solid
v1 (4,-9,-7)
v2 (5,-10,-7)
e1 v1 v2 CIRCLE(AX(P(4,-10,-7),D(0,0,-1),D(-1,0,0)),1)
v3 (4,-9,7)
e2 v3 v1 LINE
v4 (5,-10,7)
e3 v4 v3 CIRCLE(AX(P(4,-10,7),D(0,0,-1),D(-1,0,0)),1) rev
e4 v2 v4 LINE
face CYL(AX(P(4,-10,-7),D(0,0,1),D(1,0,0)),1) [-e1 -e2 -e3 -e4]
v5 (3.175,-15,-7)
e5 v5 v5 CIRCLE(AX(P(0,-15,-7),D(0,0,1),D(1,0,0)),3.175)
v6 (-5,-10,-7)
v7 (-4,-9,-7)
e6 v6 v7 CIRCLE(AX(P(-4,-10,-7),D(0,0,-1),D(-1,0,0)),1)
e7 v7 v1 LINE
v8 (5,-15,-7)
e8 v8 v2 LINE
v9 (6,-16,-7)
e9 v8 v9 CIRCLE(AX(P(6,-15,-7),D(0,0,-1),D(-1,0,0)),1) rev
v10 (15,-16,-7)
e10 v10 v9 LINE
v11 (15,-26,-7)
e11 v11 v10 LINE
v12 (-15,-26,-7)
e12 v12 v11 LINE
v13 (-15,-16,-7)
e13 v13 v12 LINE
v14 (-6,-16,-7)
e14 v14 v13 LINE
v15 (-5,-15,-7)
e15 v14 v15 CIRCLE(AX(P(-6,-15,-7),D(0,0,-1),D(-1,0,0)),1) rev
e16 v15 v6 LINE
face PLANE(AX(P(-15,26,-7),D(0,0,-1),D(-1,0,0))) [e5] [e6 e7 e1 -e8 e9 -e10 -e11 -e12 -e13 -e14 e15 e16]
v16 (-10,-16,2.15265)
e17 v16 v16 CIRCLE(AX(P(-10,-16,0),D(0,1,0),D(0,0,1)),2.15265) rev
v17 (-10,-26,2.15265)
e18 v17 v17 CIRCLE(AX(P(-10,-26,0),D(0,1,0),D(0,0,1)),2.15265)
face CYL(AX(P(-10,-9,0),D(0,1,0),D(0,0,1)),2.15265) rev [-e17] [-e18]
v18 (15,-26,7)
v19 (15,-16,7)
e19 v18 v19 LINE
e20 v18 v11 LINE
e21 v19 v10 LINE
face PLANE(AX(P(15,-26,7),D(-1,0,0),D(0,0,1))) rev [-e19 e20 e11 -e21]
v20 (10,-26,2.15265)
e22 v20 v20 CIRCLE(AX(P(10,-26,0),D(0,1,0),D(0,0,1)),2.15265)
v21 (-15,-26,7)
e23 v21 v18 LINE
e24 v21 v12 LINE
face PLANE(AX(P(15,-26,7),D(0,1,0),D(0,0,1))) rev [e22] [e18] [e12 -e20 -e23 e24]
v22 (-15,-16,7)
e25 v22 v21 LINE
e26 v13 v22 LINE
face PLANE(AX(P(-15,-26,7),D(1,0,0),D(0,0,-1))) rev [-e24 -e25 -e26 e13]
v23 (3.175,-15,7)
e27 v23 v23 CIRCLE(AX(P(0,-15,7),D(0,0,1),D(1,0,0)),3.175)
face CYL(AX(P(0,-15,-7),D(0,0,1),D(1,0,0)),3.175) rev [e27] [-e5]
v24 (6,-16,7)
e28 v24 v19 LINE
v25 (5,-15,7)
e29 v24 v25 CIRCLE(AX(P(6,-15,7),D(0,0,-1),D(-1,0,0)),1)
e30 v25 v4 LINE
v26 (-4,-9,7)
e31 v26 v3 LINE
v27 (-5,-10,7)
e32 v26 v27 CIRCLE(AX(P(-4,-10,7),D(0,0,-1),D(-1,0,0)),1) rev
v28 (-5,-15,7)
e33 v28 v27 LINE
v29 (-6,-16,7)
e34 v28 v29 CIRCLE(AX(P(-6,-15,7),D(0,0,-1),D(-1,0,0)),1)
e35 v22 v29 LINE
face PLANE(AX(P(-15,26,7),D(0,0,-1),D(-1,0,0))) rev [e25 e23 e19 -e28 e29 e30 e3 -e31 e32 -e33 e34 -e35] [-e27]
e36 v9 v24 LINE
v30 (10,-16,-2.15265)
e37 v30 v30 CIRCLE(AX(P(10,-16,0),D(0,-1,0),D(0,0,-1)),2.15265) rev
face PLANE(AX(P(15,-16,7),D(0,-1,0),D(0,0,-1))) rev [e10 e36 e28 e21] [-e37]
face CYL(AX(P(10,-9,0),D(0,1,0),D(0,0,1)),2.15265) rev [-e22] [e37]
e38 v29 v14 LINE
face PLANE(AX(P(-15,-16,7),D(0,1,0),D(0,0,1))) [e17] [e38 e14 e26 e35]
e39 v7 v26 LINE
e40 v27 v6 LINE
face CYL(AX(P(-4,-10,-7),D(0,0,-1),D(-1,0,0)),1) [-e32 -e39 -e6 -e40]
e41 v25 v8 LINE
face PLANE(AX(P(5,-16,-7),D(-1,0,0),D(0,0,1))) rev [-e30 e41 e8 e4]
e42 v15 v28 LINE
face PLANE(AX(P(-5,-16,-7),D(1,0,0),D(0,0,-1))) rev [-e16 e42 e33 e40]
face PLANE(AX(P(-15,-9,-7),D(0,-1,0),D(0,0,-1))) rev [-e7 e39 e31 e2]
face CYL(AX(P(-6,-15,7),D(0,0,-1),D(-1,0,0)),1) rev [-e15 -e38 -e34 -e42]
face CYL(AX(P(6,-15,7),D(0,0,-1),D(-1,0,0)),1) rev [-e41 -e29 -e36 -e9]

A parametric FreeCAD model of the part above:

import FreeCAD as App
import Part
import Sketcher

V = App.Vector
Q = App.Units.Quantity


def edges_at(feature, points):
    """Names of the edges that pass closest to the given points."""
    edges = feature.Shape.Edges
    near = lambda p: min(range(len(edges)), key=lambda i: edges[i].distToShape(Part.Vertex(*p))[0])
    return sorted({f"Edge{near(p) + 1}" for p in points})

doc = App.newDocument("Part")
params = doc.addObject("Spreadsheet::Sheet", "Params")
for row, (alias, value) in enumerate([
    ("sketch1_width", "30 mm"),
    ("sketch1_height", "52 mm"),
    ("pad1_length", "14 mm"),
    ("sketch2_width", "30 mm"),
    ("sketch2_height", "35 mm"),
    ("sketch3_diameter", "6.35 mm"),
    ("hole_diameter", "4.3053 mm"),
    ("sketch5_width", "10 mm"),
    ("sketch5_height", "14 mm"),
    ("pocket3_length", "7 mm"),
    ("fillet_radius", "1 mm"),
], start=1):
    params.set(f"A{row}", alias)
    params.set(f"B{row}", "=" + value)
    params.setAlias(f"B{row}", alias)

body = doc.addObject("PartDesign::Body", "Body")

sketch1 = body.newObject("Sketcher::SketchObject", "Sketch")
sketch1.AttachmentSupport = (doc.getObject("XY_Plane"), [""])
sketch1.MapMode = "FlatFace"
sketch1.addGeometry([
    Part.LineSegment(V(-15, 26, 0), V(-15, -26, 0)),
    Part.LineSegment(V(-15, -26, 0), V(15, -26, 0)),
    Part.LineSegment(V(15, -26, 0), V(15, 26, 0)),
    Part.LineSegment(V(15, 26, 0), V(-15, 26, 0)),
], False)
sketch1.addConstraint([
    Sketcher.Constraint("Coincident", 0, 2, 1, 1),
    Sketcher.Constraint("Coincident", 1, 2, 2, 1),
    Sketcher.Constraint("Coincident", 2, 2, 3, 1),
    Sketcher.Constraint("Coincident", 3, 2, 0, 1),
    Sketcher.Constraint("Vertical", 0),
    Sketcher.Constraint("Horizontal", 1),
    Sketcher.Constraint("Vertical", 2),
    Sketcher.Constraint("Horizontal", 3),
    Sketcher.Constraint("Symmetric", 0, 2, 2, 2, -1, 1),
    Sketcher.Constraint("DistanceX", 1, 1, 1, 2, Q("30 mm")),
    Sketcher.Constraint("DistanceY", 0, 2, 0, 1, Q("52 mm")),
])
sketch1.setExpression("Constraints[9]", "Params.sketch1_width")
sketch1.setExpression("Constraints[10]", "Params.sketch1_height")
pad1 = body.newObject("PartDesign::Pad", "Pad")
pad1.Profile = sketch1
pad1.setExpression("Length", "Params.pad1_length")
pad1.Midplane = True

sketch2 = body.newObject("Sketcher::SketchObject", "Sketch001")
sketch2.AttachmentSupport = (doc.getObject("XY_Plane"), [""])
sketch2.MapMode = "FlatFace"
sketch2.AttachmentOffset = App.Placement(V(0, 0, 7), App.Rotation())
sketch2.addGeometry([
    Part.LineSegment(V(-15, 26, 0), V(-15, -9, 0)),
    Part.LineSegment(V(-15, -9, 0), V(15, -9, 0)),
    Part.LineSegment(V(15, -9, 0), V(15, 26, 0)),
    Part.LineSegment(V(15, 26, 0), V(-15, 26, 0)),
], False)
sketch2.addConstraint([
    Sketcher.Constraint("Coincident", 0, 2, 1, 1),
    Sketcher.Constraint("Coincident", 1, 2, 2, 1),
    Sketcher.Constraint("Coincident", 2, 2, 3, 1),
    Sketcher.Constraint("Coincident", 3, 2, 0, 1),
    Sketcher.Constraint("Vertical", 0),
    Sketcher.Constraint("Horizontal", 1),
    Sketcher.Constraint("Vertical", 2),
    Sketcher.Constraint("Horizontal", 3),
    Sketcher.Constraint("DistanceX", 1, 1, 1, 2, Q("30 mm")),
    Sketcher.Constraint("DistanceY", 0, 2, 0, 1, Q("35 mm")),
    Sketcher.Constraint("DistanceX", 0, 2, -1, 1, Q("15 mm")),
    Sketcher.Constraint("DistanceY", 0, 2, -1, 1, Q("9 mm")),
])
sketch2.setExpression("Constraints[8]", "Params.sketch2_width")
sketch2.setExpression("Constraints[9]", "Params.sketch2_height")
pocket1 = body.newObject("PartDesign::Pocket", "Pocket")
pocket1.Profile = sketch2
pocket1.Type = "ThroughAll"

sketch3 = body.newObject("Sketcher::SketchObject", "Sketch002")
sketch3.AttachmentSupport = (doc.getObject("XY_Plane"), [""])
sketch3.MapMode = "FlatFace"
sketch3.AttachmentOffset = App.Placement(V(0, 0, 7), App.Rotation())
sketch3.addGeometry(Part.Circle(V(0, -15, 0), V(0, 0, 1), 3.175), False)
sketch3.addConstraint([
    Sketcher.Constraint("PointOnObject", 0, 3, -2),
    Sketcher.Constraint("Diameter", 0, Q("6.35 mm")),
    Sketcher.Constraint("DistanceY", 0, 3, -1, 1, Q("15 mm")),
])
sketch3.setExpression("Constraints[1]", "Params.sketch3_diameter")
pocket2 = body.newObject("PartDesign::Pocket", "Pocket001")
pocket2.Profile = sketch3
pocket2.Type = "ThroughAll"

sketch4 = body.newObject("Sketcher::SketchObject", "Sketch003")
sketch4.AttachmentSupport = (doc.getObject("XZ_Plane"), [""])
sketch4.MapMode = "FlatFace"
sketch4.AttachmentOffset = App.Placement(V(0, 0, 9), App.Rotation())
sketch4.addGeometry([
    Part.Circle(V(10, 0, 0), V(0, 0, 1), 2.15265),
    Part.Circle(V(-10, 0, 0), V(0, 0, 1), 2.15265),
], False)
sketch4.addConstraint([
    Sketcher.Constraint("Equal", 0, 1),
    Sketcher.Constraint("Symmetric", 0, 3, 1, 3, -1, 1),
    Sketcher.Constraint("PointOnObject", 0, 3, -1),
    Sketcher.Constraint("DistanceX", -1, 1, 0, 3, Q("10 mm")),
    Sketcher.Constraint("Diameter", 0, Q("4.3053 mm")),
])
doc.recompute()
hole = body.newObject("PartDesign::Hole", "Hole")
hole.Profile = sketch4
hole.ThreadType = "None"
hole.setExpression("Diameter", "Params.hole_diameter")
hole.DepthType = "ThroughAll"
hole.Reversed = True

sketch5 = body.newObject("Sketcher::SketchObject", "Sketch004")
sketch5.AttachmentSupport = (doc.getObject("XZ_Plane"), [""])
sketch5.MapMode = "FlatFace"
sketch5.AttachmentOffset = App.Placement(V(0, 0, 9), App.Rotation())
sketch5.addGeometry([
    Part.LineSegment(V(-5, 7, 0), V(-5, -7, 0)),
    Part.LineSegment(V(-5, -7, 0), V(-15, -7, 0)),
    Part.LineSegment(V(-15, -7, 0), V(-15, 7, 0)),
    Part.LineSegment(V(-15, 7, 0), V(-5, 7, 0)),
    Part.LineSegment(V(15, 7, 0), V(15, -7, 0)),
    Part.LineSegment(V(15, -7, 0), V(5, -7, 0)),
    Part.LineSegment(V(5, -7, 0), V(5, 7, 0)),
    Part.LineSegment(V(5, 7, 0), V(15, 7, 0)),
], False)
sketch5.addConstraint([
    Sketcher.Constraint("Coincident", 0, 2, 1, 1),
    Sketcher.Constraint("Coincident", 1, 2, 2, 1),
    Sketcher.Constraint("Coincident", 2, 2, 3, 1),
    Sketcher.Constraint("Coincident", 3, 2, 0, 1),
    Sketcher.Constraint("Coincident", 4, 2, 5, 1),
    Sketcher.Constraint("Coincident", 5, 2, 6, 1),
    Sketcher.Constraint("Coincident", 6, 2, 7, 1),
    Sketcher.Constraint("Coincident", 7, 2, 4, 1),
    Sketcher.Constraint("Vertical", 0),
    Sketcher.Constraint("Horizontal", 1),
    Sketcher.Constraint("Vertical", 2),
    Sketcher.Constraint("Horizontal", 3),
    Sketcher.Constraint("Vertical", 4),
    Sketcher.Constraint("Horizontal", 5),
    Sketcher.Constraint("Vertical", 6),
    Sketcher.Constraint("Horizontal", 7),
    Sketcher.Constraint("Symmetric", 2, 2, 4, 2, -1, 1),
    Sketcher.Constraint("Symmetric", 0, 2, 6, 2, -1, 1),
    Sketcher.Constraint("Horizontal", 1, 2, 4, 2),
    Sketcher.Constraint("DistanceX", 1, 2, 1, 1, Q("10 mm")),
    Sketcher.Constraint("DistanceY", 0, 2, 0, 1, Q("14 mm")),
    Sketcher.Constraint("DistanceX", 0, 2, -1, 1, Q("5 mm")),
])
sketch5.setExpression("Constraints[19]", "Params.sketch5_width")
sketch5.setExpression("Constraints[20]", "Params.sketch5_height")
pocket3 = body.newObject("PartDesign::Pocket", "Pocket002")
pocket3.Profile = sketch5
pocket3.setExpression("Length", "Params.pocket3_length")
pocket3.Reversed = True
doc.recompute()

fillet = body.newObject("PartDesign::Fillet", "Fillet")
fillet.Base = (pocket3, edges_at(pocket3, [
    (-5, -9, 0),
    (-5, -16, 0),
    (5, -9, 0),
    (5, -16, 0),
]))
fillet.setExpression("Radius", "Params.fillet_radius")

doc.recompute()
